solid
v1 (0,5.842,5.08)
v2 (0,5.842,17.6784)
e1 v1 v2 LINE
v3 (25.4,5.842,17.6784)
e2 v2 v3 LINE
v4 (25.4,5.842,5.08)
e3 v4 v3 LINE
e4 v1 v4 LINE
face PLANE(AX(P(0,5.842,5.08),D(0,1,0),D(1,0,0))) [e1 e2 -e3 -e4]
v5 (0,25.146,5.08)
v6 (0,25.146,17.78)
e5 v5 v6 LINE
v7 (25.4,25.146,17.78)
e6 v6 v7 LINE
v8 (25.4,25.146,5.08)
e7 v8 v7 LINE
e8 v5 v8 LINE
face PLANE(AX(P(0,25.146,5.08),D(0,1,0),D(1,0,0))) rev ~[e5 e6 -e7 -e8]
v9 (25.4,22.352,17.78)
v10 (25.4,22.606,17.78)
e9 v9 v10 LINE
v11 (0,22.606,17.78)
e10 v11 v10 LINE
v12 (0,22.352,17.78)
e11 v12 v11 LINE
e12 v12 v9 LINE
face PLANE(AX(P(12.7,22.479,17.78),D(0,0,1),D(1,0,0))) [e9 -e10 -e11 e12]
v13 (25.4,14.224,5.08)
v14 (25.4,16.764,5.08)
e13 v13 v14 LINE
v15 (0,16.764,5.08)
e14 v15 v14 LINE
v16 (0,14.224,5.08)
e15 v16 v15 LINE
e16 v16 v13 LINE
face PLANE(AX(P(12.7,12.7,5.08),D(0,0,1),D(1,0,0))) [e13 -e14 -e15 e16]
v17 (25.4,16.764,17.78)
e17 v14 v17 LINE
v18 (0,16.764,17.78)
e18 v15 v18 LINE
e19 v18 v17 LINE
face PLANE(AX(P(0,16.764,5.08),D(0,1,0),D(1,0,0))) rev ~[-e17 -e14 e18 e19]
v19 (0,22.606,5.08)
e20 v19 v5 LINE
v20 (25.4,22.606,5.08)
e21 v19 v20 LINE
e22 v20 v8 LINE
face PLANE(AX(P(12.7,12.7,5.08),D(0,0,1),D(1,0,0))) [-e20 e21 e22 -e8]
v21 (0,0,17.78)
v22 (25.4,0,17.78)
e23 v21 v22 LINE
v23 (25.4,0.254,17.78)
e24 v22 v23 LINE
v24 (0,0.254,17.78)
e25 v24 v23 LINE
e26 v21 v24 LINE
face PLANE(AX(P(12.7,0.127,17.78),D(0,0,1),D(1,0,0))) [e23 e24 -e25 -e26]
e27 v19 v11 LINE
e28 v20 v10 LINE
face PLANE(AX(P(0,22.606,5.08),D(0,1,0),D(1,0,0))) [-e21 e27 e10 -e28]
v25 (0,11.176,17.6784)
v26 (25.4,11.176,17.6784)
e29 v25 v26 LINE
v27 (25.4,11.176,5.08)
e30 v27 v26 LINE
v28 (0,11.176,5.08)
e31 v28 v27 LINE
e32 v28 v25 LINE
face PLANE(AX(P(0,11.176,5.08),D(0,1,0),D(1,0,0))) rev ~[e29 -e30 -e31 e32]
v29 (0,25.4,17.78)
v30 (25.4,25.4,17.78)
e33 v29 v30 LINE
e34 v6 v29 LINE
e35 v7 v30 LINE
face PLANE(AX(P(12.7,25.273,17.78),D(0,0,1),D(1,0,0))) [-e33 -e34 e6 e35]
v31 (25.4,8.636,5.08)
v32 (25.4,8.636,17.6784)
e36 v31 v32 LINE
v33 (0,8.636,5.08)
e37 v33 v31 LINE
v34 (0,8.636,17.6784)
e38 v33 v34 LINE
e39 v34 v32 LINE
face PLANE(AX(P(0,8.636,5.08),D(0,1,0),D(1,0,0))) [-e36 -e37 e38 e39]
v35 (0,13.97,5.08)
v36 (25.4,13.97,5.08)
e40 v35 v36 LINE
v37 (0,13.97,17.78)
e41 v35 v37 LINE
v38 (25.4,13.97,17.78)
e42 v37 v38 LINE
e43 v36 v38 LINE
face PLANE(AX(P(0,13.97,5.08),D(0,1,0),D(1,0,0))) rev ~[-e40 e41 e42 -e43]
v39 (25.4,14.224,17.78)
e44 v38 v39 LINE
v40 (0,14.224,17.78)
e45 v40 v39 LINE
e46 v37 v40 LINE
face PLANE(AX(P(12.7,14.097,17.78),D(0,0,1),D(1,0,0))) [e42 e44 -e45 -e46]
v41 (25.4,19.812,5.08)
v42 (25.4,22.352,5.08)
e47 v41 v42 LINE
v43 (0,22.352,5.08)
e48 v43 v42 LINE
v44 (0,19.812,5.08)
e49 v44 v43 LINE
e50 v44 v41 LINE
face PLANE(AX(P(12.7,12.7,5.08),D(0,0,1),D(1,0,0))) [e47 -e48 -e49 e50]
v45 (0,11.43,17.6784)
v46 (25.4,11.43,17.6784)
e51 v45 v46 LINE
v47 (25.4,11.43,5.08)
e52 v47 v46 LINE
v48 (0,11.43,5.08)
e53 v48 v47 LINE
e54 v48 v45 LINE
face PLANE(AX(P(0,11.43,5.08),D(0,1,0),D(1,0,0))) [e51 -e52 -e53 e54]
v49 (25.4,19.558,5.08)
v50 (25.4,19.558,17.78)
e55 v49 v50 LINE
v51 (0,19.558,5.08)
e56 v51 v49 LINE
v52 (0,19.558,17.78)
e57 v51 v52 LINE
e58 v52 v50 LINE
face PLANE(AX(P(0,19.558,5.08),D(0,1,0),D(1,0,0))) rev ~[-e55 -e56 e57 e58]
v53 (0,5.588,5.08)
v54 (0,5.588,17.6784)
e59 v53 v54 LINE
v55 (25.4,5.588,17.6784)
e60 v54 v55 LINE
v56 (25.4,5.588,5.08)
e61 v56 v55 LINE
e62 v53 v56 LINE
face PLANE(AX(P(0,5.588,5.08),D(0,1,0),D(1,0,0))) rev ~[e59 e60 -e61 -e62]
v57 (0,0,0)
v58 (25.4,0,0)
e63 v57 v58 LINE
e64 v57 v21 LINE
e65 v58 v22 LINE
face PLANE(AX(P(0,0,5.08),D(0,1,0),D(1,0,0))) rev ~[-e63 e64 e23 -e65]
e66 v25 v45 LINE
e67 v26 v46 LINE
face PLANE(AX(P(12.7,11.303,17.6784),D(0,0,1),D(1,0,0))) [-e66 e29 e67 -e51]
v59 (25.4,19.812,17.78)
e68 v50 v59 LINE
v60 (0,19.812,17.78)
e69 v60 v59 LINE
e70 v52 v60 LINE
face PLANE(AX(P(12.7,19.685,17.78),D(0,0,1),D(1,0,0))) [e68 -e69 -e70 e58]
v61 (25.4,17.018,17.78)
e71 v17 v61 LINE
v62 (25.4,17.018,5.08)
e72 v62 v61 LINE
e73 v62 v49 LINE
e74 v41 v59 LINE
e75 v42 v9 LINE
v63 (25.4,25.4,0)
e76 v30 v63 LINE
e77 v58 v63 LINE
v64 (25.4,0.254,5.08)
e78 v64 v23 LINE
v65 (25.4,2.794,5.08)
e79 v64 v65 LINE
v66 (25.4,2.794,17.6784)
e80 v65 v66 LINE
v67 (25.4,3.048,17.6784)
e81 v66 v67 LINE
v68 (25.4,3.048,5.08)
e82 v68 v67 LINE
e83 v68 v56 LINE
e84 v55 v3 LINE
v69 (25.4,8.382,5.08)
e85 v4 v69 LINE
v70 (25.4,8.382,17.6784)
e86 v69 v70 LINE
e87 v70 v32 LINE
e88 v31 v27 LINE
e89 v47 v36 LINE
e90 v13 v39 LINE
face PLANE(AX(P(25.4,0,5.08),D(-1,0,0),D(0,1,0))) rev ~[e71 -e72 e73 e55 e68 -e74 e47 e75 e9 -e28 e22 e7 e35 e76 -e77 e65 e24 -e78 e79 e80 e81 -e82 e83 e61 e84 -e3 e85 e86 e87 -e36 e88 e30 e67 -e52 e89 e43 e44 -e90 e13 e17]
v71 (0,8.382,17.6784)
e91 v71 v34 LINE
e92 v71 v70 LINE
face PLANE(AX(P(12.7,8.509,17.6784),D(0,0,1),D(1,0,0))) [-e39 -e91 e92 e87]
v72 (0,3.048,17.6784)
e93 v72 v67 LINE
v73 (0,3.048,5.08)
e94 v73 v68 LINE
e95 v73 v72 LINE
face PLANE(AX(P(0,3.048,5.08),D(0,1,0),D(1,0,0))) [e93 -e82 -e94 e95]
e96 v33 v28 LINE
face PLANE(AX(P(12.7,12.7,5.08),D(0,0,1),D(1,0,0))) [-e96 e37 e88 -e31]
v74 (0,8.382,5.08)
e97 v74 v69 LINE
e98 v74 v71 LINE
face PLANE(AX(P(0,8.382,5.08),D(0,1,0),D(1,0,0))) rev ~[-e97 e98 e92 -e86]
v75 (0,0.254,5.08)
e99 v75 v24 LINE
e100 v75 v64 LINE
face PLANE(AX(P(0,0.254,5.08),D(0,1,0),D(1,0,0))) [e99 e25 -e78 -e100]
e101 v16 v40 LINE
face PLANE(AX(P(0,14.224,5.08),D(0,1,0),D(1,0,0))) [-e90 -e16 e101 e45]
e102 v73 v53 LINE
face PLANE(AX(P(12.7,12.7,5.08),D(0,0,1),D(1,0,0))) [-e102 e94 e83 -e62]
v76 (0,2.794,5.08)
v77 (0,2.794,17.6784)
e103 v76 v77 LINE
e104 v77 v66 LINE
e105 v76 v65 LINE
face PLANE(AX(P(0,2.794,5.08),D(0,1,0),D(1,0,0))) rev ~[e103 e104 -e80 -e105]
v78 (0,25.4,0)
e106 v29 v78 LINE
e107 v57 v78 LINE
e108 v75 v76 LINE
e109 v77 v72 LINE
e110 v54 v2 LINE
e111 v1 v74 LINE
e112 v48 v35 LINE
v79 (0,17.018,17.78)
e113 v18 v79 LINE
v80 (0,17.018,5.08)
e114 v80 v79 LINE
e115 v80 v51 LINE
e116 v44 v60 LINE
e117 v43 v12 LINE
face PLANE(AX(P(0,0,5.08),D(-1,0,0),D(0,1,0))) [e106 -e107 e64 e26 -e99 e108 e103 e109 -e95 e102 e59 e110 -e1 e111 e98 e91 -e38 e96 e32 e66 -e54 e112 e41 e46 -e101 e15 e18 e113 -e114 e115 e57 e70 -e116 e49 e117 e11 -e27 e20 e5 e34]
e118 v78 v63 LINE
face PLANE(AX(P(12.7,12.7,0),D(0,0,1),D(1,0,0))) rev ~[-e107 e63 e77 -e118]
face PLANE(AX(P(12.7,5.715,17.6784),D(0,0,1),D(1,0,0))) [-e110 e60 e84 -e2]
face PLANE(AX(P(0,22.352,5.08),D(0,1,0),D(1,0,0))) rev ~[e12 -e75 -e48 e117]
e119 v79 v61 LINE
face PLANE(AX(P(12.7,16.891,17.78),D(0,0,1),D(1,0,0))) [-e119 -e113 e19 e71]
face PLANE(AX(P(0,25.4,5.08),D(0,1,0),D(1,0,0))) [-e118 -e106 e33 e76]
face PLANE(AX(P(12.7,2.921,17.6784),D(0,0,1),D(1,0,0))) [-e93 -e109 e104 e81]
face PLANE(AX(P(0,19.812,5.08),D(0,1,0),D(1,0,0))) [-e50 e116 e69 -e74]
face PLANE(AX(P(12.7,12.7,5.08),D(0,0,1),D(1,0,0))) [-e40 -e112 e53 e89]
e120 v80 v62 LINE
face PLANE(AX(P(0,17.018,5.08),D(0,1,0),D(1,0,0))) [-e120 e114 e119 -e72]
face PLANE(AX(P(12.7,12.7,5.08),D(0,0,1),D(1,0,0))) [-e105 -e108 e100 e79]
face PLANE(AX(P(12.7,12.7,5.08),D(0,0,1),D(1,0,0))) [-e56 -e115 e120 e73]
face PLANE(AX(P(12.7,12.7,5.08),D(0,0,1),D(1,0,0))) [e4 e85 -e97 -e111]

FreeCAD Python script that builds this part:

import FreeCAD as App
import Part
import Sketcher
from FreeCAD import Vector
Q = App.Units.Quantity

doc = App.newDocument("Part")
body = doc.addObject("PartDesign::Body", "Body")

sketch1 = doc.addObject("Sketcher::SketchObject", "Sketch")
body.addObject(sketch1)
sketch1.AttachmentSupport = (doc.XY_Plane, [""])
sketch1.MapMode = "FlatFace"
sketch1.addGeometry([
    Part.LineSegment(Vector(0, 25, 0), Vector(0, 0, 0)),
    Part.LineSegment(Vector(0, 0, 0), Vector(25, 0, 0)),
    Part.LineSegment(Vector(25, 0, 0), Vector(25, 25, 0)),
    Part.LineSegment(Vector(25, 25, 0), Vector(0, 25, 0)),
], False)
sketch1.addConstraint([
    Sketcher.Constraint("Coincident", 0, 2, 1, 1),
    Sketcher.Constraint("Coincident", 1, 2, 2, 1),
    Sketcher.Constraint("Coincident", 2, 2, 3, 1),
    Sketcher.Constraint("Coincident", 3, 2, 0, 1),
    Sketcher.Constraint("Vertical", 0),
    Sketcher.Constraint("Horizontal", 1),
    Sketcher.Constraint("Vertical", 2),
    Sketcher.Constraint("Horizontal", 3),
    Sketcher.Constraint("Coincident", 0, 2, -1, 1),
    Sketcher.Constraint("Equal", 3, 0),
    Sketcher.Constraint("DistanceX", 1, 1, 1, 2, Q("1 in")),
])
pad1 = doc.addObject("PartDesign::Pad", "Pad")
body.addObject(pad1)
pad1.Profile = sketch1
pad1.Length = Q("0.2 in")

sketch2 = doc.addObject("Sketcher::SketchObject", "Sketch001")
body.addObject(sketch2)
sketch2.AttachmentSupport = (doc.XY_Plane, [""])
sketch2.MapMode = "FlatFace"
sketch2.AttachmentOffset = App.Placement(Vector(0, 0, 0.2 * 25.4), App.Rotation())
sketch2.addGeometry([
    Part.LineSegment(Vector(0, 25.4, 0), Vector(0, 25.15, 0)),
    Part.LineSegment(Vector(0, 25.15, 0), Vector(25.4, 25.15, 0)),
    Part.LineSegment(Vector(25.4, 25.15, 0), Vector(25.4, 25.4, 0)),
    Part.LineSegment(Vector(25.4, 25.4, 0), Vector(0, 25.4, 0)),
], False)
sketch2.addConstraint([
    Sketcher.Constraint("Coincident", 0, 2, 1, 1),
    Sketcher.Constraint("Coincident", 1, 2, 2, 1),
    Sketcher.Constraint("Coincident", 2, 2, 3, 1),
    Sketcher.Constraint("Coincident", 3, 2, 0, 1),
    Sketcher.Constraint("Vertical", 0),
    Sketcher.Constraint("Horizontal", 1),
    Sketcher.Constraint("Vertical", 2),
    Sketcher.Constraint("Horizontal", 3),
    Sketcher.Constraint("PointOnObject", 0, 2, -2),
    Sketcher.Constraint("DistanceX", 1, 1, 1, 2, Q("1 in")),
    Sketcher.Constraint("DistanceY", -1, 1, 2, 2, Q("1 in")),
    Sketcher.Constraint("DistanceY", 0, 2, 0, 1, Q("0.01 in")),
])
pad2 = doc.addObject("PartDesign::Pad", "Pad001")
body.addObject(pad2)
pad2.Profile = sketch2
pad2.Length = Q("0.5 in")

sketch3 = doc.addObject("Sketcher::SketchObject", "Sketch002")
body.addObject(sketch3)
sketch3.AttachmentSupport = (doc.XY_Plane, [""])
sketch3.MapMode = "FlatFace"
sketch3.AttachmentOffset = App.Placement(Vector(0, 0, 0.2 * 25.4), App.Rotation())
sketch3.addGeometry([
    Part.LineSegment(Vector(0, 11.43, 0), Vector(0, 11.18, 0)),
    Part.LineSegment(Vector(0, 11.18, 0), Vector(25.4, 11.18, 0)),
    Part.LineSegment(Vector(25.4, 11.18, 0), Vector(25.4, 11.43, 0)),
    Part.LineSegment(Vector(25.4, 11.43, 0), Vector(0, 11.43, 0)),
    Part.LineSegment(Vector(0, 8.64, 0), Vector(0, 8.38, 0)),
    Part.LineSegment(Vector(0, 8.38, 0), Vector(25.4, 8.38, 0)),
    Part.LineSegment(Vector(25.4, 8.38, 0), Vector(25.4, 8.64, 0)),
    Part.LineSegment(Vector(25.4, 8.64, 0), Vector(0, 8.64, 0)),
    Part.LineSegment(Vector(0, 5.84, 0), Vector(0, 5.59, 0)),
    Part.LineSegment(Vector(0, 5.59, 0), Vector(25.4, 5.59, 0)),
    Part.LineSegment(Vector(25.4, 5.59, 0), Vector(25.4, 5.84, 0)),
    Part.LineSegment(Vector(25.4, 5.84, 0), Vector(0, 5.84, 0)),
    Part.LineSegment(Vector(0, 3.05, 0), Vector(0, 2.79, 0)),
    Part.LineSegment(Vector(0, 2.79, 0), Vector(25.4, 2.79, 0)),
    Part.LineSegment(Vector(25.4, 2.79, 0), Vector(25.4, 3.05, 0)),
    Part.LineSegment(Vector(25.4, 3.05, 0), Vector(0, 3.05, 0)),
], False)
sketch3.addConstraint([
    Sketcher.Constraint("Coincident", 0, 2, 1, 1),
    Sketcher.Constraint("Coincident", 1, 2, 2, 1),
    Sketcher.Constraint("Coincident", 2, 2, 3, 1),
    Sketcher.Constraint("Coincident", 3, 2, 0, 1),
    Sketcher.Constraint("Coincident", 4, 2, 5, 1),
    Sketcher.Constraint("Coincident", 5, 2, 6, 1),
    Sketcher.Constraint("Coincident", 6, 2, 7, 1),
    Sketcher.Constraint("Coincident", 7, 2, 4, 1),
    Sketcher.Constraint("Coincident", 8, 2, 9, 1),
    Sketcher.Constraint("Coincident", 9, 2, 10, 1),
    Sketcher.Constraint("Coincident", 10, 2, 11, 1),
    Sketcher.Constraint("Coincident", 11, 2, 8, 1),
    Sketcher.Constraint("Coincident", 12, 2, 13, 1),
    Sketcher.Constraint("Coincident", 13, 2, 14, 1),
    Sketcher.Constraint("Coincident", 14, 2, 15, 1),
    Sketcher.Constraint("Coincident", 15, 2, 12, 1),
    Sketcher.Constraint("Vertical", 0),
    Sketcher.Constraint("Horizontal", 1),
    Sketcher.Constraint("Vertical", 2),
    Sketcher.Constraint("Horizontal", 3),
    Sketcher.Constraint("Vertical", 4),
    Sketcher.Constraint("Horizontal", 5),
    Sketcher.Constraint("Vertical", 6),
    Sketcher.Constraint("Horizontal", 7),
    Sketcher.Constraint("Vertical", 8),
    Sketcher.Constraint("Horizontal", 9),
    Sketcher.Constraint("Vertical", 10),
    Sketcher.Constraint("Horizontal", 11),
    Sketcher.Constraint("Vertical", 12),
    Sketcher.Constraint("Horizontal", 13),
    Sketcher.Constraint("Vertical", 14),
    Sketcher.Constraint("Horizontal", 15),
    Sketcher.Constraint("PointOnObject", 0, 2, -2),
    Sketcher.Constraint("PointOnObject", 4, 2, -2),
    Sketcher.Constraint("PointOnObject", 8, 2, -2),
    Sketcher.Constraint("PointOnObject", 12, 2, -2),
    Sketcher.Constraint("Vertical", 2, 2, 5, 2),
    Sketcher.Constraint("Vertical", 6, 2, 9, 2),
    Sketcher.Constraint("Vertical", 10, 2, 13, 2),
    Sketcher.Constraint("Equal", 2, 4),
    Sketcher.Constraint("Equal", 6, 8),
    Sketcher.Constraint("Equal", 10, 12),
    Sketcher.Constraint("DistanceX", 1, 1, 1, 2, Q("1 in")),
    Sketcher.Constraint("DistanceY", 0, 2, 0, 1, Q("0.01 in")),
    Sketcher.Constraint("DistanceY", 6, 2, 1, 2, Q("0.1 in")),
    Sketcher.Constraint("DistanceY", 10, 2, 5, 2, Q("0.1 in")),
    Sketcher.Constraint("DistanceY", 14, 2, 9, 2, Q("0.1 in")),
    Sketcher.Constraint("DistanceY", -1, 1, 0, 2, Q("0.44 in")),
])
pad3 = doc.addObject("PartDesign::Pad", "Pad002")
body.addObject(pad3)
pad3.Profile = sketch3
pad3.Length = Q("0.496 in")

sketch4 = doc.addObject("Sketcher::SketchObject", "Sketch003")
body.addObject(sketch4)
sketch4.AttachmentSupport = (doc.XY_Plane, [""])
sketch4.MapMode = "FlatFace"
sketch4.AttachmentOffset = App.Placement(Vector(0, 0, 0.2 * 25.4), App.Rotation())
sketch4.addGeometry([
    Part.LineSegment(Vector(0, 19.81, 0), Vector(0, 19.56, 0)),
    Part.LineSegment(Vector(0, 19.56, 0), Vector(25.4, 19.56, 0)),
    Part.LineSegment(Vector(25.4, 19.56, 0), Vector(25.4, 19.81, 0)),
    Part.LineSegment(Vector(25.4, 19.81, 0), Vector(0, 19.81, 0)),
    Part.LineSegment(Vector(0, 17.02, 0), Vector(0, 16.76, 0)),
    Part.LineSegment(Vector(0, 16.76, 0), Vector(25.4, 16.76, 0)),
    Part.LineSegment(Vector(25.4, 16.76, 0), Vector(25.4, 17.02, 0)),
    Part.LineSegment(Vector(25.4, 17.02, 0), Vector(0, 17.02, 0)),
    Part.LineSegment(Vector(0, 14.22, 0), Vector(0, 13.97, 0)),
    Part.LineSegment(Vector(0, 13.97, 0), Vector(25.4, 13.97, 0)),
    Part.LineSegment(Vector(25.4, 13.97, 0), Vector(25.4, 14.22, 0)),
    Part.LineSegment(Vector(25.4, 14.22, 0), Vector(0, 14.22, 0)),
], False)
sketch4.addConstraint([
    Sketcher.Constraint("Coincident", 0, 2, 1, 1),
    Sketcher.Constraint("Coincident", 1, 2, 2, 1),
    Sketcher.Constraint("Coincident", 2, 2, 3, 1),
    Sketcher.Constraint("Coincident", 3, 2, 0, 1),
    Sketcher.Constraint("Coincident", 4, 2, 5, 1),
    Sketcher.Constraint("Coincident", 5, 2, 6, 1),
    Sketcher.Constraint("Coincident", 6, 2, 7, 1),
    Sketcher.Constraint("Coincident", 7, 2, 4, 1),
    Sketcher.Constraint("Coincident", 8, 2, 9, 1),
    Sketcher.Constraint("Coincident", 9, 2, 10, 1),
    Sketcher.Constraint("Coincident", 10, 2, 11, 1),
    Sketcher.Constraint("Coincident", 11, 2, 8, 1),
    Sketcher.Constraint("Vertical", 0),
    Sketcher.Constraint("Horizontal", 1),
    Sketcher.Constraint("Vertical", 2),
    Sketcher.Constraint("Horizontal", 3),
    Sketcher.Constraint("Vertical", 4),
    Sketcher.Constraint("Horizontal", 5),
    Sketcher.Constraint("Vertical", 6),
    Sketcher.Constraint("Horizontal", 7),
    Sketcher.Constraint("Vertical", 8),
    Sketcher.Constraint("Horizontal", 9),
    Sketcher.Constraint("Vertical", 10),
    Sketcher.Constraint("Horizontal", 11),
    Sketcher.Constraint("PointOnObject", 0, 2, -2),
    Sketcher.Constraint("PointOnObject", 4, 2, -2),
    Sketcher.Constraint("PointOnObject", 8, 2, -2),
    Sketcher.Constraint("Vertical", 2, 2, 5, 2),
    Sketcher.Constraint("Vertical", 6, 2, 9, 2),
    Sketcher.Constraint("Equal", 2, 4),
    Sketcher.Constraint("Equal", 6, 8),
    Sketcher.Constraint("DistanceX", 1, 1, 1, 2, Q("1 in")),
    Sketcher.Constraint("DistanceY", 0, 2, 0, 1, Q("0.01 in")),
    Sketcher.Constraint("DistanceY", 6, 2, 1, 2, Q("0.1 in")),
    Sketcher.Constraint("DistanceY", 10, 2, 5, 2, Q("0.1 in")),
    Sketcher.Constraint("DistanceY", -1, 1, 0, 2, Q("0.77 in")),
])
pad4 = doc.addObject("PartDesign::Pad", "Pad003")
body.addObject(pad4)
pad4.Profile = sketch4
pad4.Length = Q("0.5 in")

sketch5 = doc.addObject("Sketcher::SketchObject", "Sketch004")
body.addObject(sketch5)
sketch5.AttachmentSupport = (doc.XY_Plane, [""])
sketch5.MapMode = "FlatFace"
sketch5.AttachmentOffset = App.Placement(Vector(0, 0, 0.2 * 25.4), App.Rotation())
sketch5.addGeometry([
    Part.LineSegment(Vector(0, 0.25, 0), Vector(0, 0, 0)),
    Part.LineSegment(Vector(0, 0, 0), Vector(25.4, 0, 0)),
    Part.LineSegment(Vector(25.4, 0, 0), Vector(25.4, 0.25, 0)),
    Part.LineSegment(Vector(25.4, 0.25, 0), Vector(0, 0.25, 0)),
    Part.LineSegment(Vector(0, 22.61, 0), Vector(0, 22.35, 0)),
    Part.LineSegment(Vector(0, 22.35, 0), Vector(25.4, 22.35, 0)),
    Part.LineSegment(Vector(25.4, 22.35, 0), Vector(25.4, 22.61, 0)),
    Part.LineSegment(Vector(25.4, 22.61, 0), Vector(0, 22.61, 0)),
], False)
sketch5.addConstraint([
    Sketcher.Constraint("Coincident", 0, 2, 1, 1),
    Sketcher.Constraint("Coincident", 1, 2, 2, 1),
    Sketcher.Constraint("Coincident", 2, 2, 3, 1),
    Sketcher.Constraint("Coincident", 3, 2, 0, 1),
    Sketcher.Constraint("Coincident", 4, 2, 5, 1),
    Sketcher.Constraint("Coincident", 5, 2, 6, 1),
    Sketcher.Constraint("Coincident", 6, 2, 7, 1),
    Sketcher.Constraint("Coincident", 7, 2, 4, 1),
    Sketcher.Constraint("Vertical", 0),
    Sketcher.Constraint("Horizontal", 1),
    Sketcher.Constraint("Vertical", 2),
    Sketcher.Constraint("Horizontal", 3),
    Sketcher.Constraint("Vertical", 4),
    Sketcher.Constraint("Horizontal", 5),
    Sketcher.Constraint("Vertical", 6),
    Sketcher.Constraint("Horizontal", 7),
    Sketcher.Constraint("Coincident", 0, 2, -1, 1),
    Sketcher.Constraint("PointOnObject", 4, 2, -2),
    Sketcher.Constraint("Vertical", 2, 2, 5, 2),
    Sketcher.Constraint("Equal", 2, 4),
    Sketcher.Constraint("DistanceX", 1, 1, 1, 2, Q("1 in")),
    Sketcher.Constraint("DistanceY", 0, 2, 0, 1, Q("0.01 in")),
    Sketcher.Constraint("DistanceY", -1, 1, 4, 2, Q("0.88 in")),
])
pad5 = doc.addObject("PartDesign::Pad", "Pad004")
body.addObject(pad5)
pad5.Profile = sketch5
pad5.Length = Q("0.5 in")

doc.recompute()
